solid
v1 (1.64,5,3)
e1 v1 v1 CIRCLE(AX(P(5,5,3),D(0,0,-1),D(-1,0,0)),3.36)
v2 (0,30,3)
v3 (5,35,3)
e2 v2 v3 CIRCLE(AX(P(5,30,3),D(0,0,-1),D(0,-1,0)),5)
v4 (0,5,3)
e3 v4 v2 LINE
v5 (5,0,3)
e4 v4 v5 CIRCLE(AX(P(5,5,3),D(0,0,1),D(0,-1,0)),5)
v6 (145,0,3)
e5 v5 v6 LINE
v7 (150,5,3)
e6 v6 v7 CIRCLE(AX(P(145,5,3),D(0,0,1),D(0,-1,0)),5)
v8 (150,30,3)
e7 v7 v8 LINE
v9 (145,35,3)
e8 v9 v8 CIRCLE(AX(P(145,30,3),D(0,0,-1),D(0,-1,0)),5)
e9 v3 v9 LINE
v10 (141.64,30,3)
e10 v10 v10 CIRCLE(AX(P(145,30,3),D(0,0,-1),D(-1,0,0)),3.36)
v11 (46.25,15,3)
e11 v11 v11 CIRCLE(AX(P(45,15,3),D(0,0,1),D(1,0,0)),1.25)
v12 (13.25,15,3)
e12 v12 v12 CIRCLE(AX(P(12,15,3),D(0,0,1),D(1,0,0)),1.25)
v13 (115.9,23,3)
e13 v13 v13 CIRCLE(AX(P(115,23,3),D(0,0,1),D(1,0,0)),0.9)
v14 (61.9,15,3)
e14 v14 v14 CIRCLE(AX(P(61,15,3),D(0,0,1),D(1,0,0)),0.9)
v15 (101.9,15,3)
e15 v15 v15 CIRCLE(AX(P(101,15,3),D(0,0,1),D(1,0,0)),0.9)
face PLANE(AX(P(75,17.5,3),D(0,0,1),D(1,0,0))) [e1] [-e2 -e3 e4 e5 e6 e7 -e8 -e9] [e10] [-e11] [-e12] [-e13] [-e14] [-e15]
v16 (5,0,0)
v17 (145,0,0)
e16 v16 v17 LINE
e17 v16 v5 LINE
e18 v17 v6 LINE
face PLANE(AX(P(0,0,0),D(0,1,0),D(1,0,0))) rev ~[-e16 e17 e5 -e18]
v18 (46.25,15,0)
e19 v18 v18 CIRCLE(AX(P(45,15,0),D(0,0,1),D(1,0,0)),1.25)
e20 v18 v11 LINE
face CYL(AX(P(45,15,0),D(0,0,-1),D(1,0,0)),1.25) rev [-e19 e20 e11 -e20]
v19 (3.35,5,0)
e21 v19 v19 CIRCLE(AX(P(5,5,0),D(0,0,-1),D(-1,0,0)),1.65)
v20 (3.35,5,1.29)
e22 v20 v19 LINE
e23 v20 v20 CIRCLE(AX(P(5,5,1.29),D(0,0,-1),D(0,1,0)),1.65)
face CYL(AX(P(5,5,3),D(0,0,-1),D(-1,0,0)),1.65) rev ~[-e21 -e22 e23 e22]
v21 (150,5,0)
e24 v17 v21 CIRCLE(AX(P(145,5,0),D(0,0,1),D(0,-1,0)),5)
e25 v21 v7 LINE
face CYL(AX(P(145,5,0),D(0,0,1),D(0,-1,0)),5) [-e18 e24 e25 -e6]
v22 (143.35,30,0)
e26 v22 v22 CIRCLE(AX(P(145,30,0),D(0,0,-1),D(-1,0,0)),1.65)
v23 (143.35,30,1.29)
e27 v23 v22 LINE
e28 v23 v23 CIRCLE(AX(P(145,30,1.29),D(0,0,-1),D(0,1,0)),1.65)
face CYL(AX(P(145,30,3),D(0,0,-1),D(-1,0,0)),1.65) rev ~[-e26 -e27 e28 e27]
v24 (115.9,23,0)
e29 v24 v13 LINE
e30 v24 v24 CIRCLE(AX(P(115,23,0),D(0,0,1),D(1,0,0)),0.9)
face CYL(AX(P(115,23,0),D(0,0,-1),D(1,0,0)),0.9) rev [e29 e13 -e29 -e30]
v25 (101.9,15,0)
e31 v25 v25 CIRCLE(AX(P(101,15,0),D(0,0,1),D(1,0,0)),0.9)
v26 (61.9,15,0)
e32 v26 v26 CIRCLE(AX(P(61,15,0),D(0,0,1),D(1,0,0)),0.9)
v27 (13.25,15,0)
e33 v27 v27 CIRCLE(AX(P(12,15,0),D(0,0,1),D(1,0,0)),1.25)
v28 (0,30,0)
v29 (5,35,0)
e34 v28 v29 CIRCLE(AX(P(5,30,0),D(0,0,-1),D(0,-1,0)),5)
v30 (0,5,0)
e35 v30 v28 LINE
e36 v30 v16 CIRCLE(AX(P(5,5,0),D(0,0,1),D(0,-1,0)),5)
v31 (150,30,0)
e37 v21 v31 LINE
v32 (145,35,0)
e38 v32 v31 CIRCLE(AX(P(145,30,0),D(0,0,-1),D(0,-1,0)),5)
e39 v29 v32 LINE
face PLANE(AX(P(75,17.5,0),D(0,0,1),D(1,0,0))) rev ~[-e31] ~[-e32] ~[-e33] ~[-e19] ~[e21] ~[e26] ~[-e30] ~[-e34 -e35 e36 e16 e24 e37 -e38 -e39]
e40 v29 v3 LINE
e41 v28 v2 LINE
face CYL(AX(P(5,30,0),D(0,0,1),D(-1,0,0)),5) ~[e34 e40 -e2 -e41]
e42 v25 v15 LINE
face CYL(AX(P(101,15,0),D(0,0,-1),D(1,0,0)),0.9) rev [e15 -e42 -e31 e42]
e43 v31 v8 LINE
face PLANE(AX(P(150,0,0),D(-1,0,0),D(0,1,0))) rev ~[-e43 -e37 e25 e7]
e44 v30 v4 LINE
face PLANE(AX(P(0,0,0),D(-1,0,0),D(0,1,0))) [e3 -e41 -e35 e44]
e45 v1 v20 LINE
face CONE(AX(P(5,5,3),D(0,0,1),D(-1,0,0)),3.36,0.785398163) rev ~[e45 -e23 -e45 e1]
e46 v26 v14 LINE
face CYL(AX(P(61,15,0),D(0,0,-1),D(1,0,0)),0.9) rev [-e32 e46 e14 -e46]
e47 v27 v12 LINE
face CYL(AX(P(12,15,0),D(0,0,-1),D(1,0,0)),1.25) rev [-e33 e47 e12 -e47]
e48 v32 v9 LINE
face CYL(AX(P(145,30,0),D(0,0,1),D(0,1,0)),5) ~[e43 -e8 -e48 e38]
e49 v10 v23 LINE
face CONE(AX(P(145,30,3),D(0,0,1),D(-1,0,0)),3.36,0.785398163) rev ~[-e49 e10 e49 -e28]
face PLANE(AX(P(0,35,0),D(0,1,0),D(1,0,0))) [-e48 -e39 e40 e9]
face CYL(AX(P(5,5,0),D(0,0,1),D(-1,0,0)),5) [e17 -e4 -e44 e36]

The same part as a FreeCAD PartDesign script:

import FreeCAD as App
import Part
import Sketcher


def edges_at(feature, points):
    """Names of the edges that pass closest to the given points."""
    edges = feature.Shape.Edges
    near = lambda p: min(range(len(edges)), key=lambda i: edges[i].distToShape(Part.Vertex(*p))[0])
    return sorted({f"Edge{near(p) + 1}" for p in points})


def add_polygon(sketch, points):
    """Adds a closed chain of lines whose ends are joined by coincident constraints."""
    first, n = sketch.GeometryCount, len(points)
    for a, b in zip(points, points[1:] + points[:1]):
        sketch.addGeometry(Part.LineSegment(App.Vector(*a, 0), App.Vector(*b, 0)), False)
    for i in range(n):
        sketch.addConstraint(Sketcher.Constraint("Coincident", first + i, 2, first + (i + 1) % n, 1))

doc = App.newDocument("Part")
body = doc.addObject("PartDesign::Body", "Body")

# Sketch on XY plane
sketch1 = body.newObject("Sketcher::SketchObject", "Sketch")
sketch1.AttachmentSupport = (doc.getObject("XY_Plane"), [""])
sketch1.MapMode = "FlatFace"
add_polygon(sketch1, [(0, 35), (0, 0), (150, 0), (150, 35)])  # lines 0-3
sketch1.addGeometry(Part.Circle(App.Vector(12, 15, 0), App.Vector(0, 0, 1), 1.25), False)  # 4
sketch1.addGeometry(Part.Circle(App.Vector(45, 15, 0), App.Vector(0, 0, 1), 1.25), False)  # 5
sketch1.addGeometry(Part.Circle(App.Vector(61, 15, 0), App.Vector(0, 0, 1), 0.9), False)  # 6
sketch1.addGeometry(Part.Circle(App.Vector(101, 15, 0), App.Vector(0, 0, 1), 0.9), False)  # 7
sketch1.addGeometry(Part.Circle(App.Vector(115, 23, 0), App.Vector(0, 0, 1), 0.9), False)  # 8
sketch1.addConstraint([
    Sketcher.Constraint("Vertical", 0),
    Sketcher.Constraint("Horizontal", 1),
    Sketcher.Constraint("Vertical", 2),
    Sketcher.Constraint("Horizontal", 3),
    Sketcher.Constraint("Coincident", 0, 2, -1, 1),
    Sketcher.Constraint("Equal", 4, 5),
    Sketcher.Constraint("Equal", 6, 7),
    Sketcher.Constraint("Equal", 7, 8),
    Sketcher.Constraint("Horizontal", 4, 3, 5, 3),
    Sketcher.Constraint("Horizontal", 5, 3, 6, 3),
    Sketcher.Constraint("Horizontal", 6, 3, 7, 3),
    Sketcher.Constraint("Diameter", 4, 2.5),
    Sketcher.Constraint("Diameter", 6, 1.8),
    Sketcher.Constraint("DistanceX", 1, 1, 1, 2, 150.0),
    Sketcher.Constraint("DistanceY", 0, 2, 0, 1, 35.0),
    Sketcher.Constraint("DistanceX", -1, 1, 4, 3, 12.0),
    Sketcher.Constraint("DistanceY", -1, 1, 4, 3, 15.0),
    Sketcher.Constraint("DistanceX", -1, 1, 5, 3, 45.0),
    Sketcher.Constraint("DistanceX", -1, 1, 6, 3, 61.0),
    Sketcher.Constraint("DistanceX", -1, 1, 7, 3, 101.0),
    Sketcher.Constraint("DistanceX", -1, 1, 8, 3, 115.0),
    Sketcher.Constraint("DistanceY", -1, 1, 8, 3, 23.0),
])
pad1 = body.newObject("PartDesign::Pad", "Pad")
pad1.Profile = sketch1
pad1.Length = 3
doc.recompute()

fillet = body.newObject("PartDesign::Fillet", "Fillet")
fillet.Base = (pad1, edges_at(pad1, [
    (0, 35, 1.5),
    (0, 0, 1.5),
    (150, 0, 1.5),
    (150, 35, 1.5),
]))
fillet.Radius = 5

# Sketch on XY plane
sketch2 = body.newObject("Sketcher::SketchObject", "Sketch001")
sketch2.AttachmentSupport = (doc.getObject("XY_Plane"), [""])
sketch2.MapMode = "FlatFace"
sketch2.AttachmentOffset = App.Placement(App.Vector(0, 0, 3), App.Rotation())
sketch2.addGeometry([
    Part.Circle(App.Vector(5, 5, 0), App.Vector(0, 0, 1), 1.65),
    Part.Circle(App.Vector(145, 30, 0), App.Vector(0, 0, 1), 1.65),
], False)
sketch2.addConstraint([
    Sketcher.Constraint("Equal", 0, 1),
    Sketcher.Constraint("Diameter", 0, 3.3),
    Sketcher.Constraint("DistanceX", -1, 1, 0, 3, 5.0),
    Sketcher.Constraint("DistanceY", -1, 1, 0, 3, 5.0),
    Sketcher.Constraint("DistanceX", -1, 1, 1, 3, 145.0),
    Sketcher.Constraint("DistanceY", -1, 1, 1, 3, 30.0),
])
doc.recompute()
hole = body.newObject("PartDesign::Hole", "Hole")
hole.Profile = sketch2
hole.ThreadType = "None"
hole.Diameter = 3.3
hole.DepthType = "ThroughAll"
hole.HoleCutType = "Countersink"
hole.HoleCutDiameter = 6.72
hole.HoleCutCountersinkAngle = 90

doc.recompute()
